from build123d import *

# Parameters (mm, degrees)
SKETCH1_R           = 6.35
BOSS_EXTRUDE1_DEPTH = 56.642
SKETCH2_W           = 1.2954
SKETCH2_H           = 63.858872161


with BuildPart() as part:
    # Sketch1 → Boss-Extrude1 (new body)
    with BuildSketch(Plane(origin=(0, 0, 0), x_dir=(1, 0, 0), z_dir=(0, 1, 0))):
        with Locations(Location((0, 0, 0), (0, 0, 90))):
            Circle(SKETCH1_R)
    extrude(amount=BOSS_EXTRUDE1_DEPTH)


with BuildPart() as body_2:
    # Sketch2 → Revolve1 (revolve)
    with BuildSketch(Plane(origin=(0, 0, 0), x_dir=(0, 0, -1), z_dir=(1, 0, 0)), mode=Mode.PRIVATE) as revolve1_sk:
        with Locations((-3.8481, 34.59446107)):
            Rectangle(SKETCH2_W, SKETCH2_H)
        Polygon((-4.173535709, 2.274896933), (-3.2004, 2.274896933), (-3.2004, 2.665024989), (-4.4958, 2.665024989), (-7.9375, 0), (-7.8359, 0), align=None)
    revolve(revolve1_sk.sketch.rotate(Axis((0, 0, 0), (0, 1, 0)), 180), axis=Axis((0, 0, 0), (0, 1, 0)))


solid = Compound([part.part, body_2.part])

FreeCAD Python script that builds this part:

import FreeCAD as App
import Part
import Sketcher
from FreeCAD import Vector
Q = App.Units.Quantity


def add_polygon(sketch, points):
    """Adds a closed chain of lines whose ends are joined by coincident constraints."""
    first, n = sketch.GeometryCount, len(points)
    for a, b in zip(points, points[1:] + points[:1]):
        sketch.addGeometry(Part.LineSegment(App.Vector(*a, 0), App.Vector(*b, 0)), False)
    for i in range(n):
        sketch.addConstraint(Sketcher.Constraint("Coincident", first + i, 2, first + (i + 1) % n, 1))

doc = App.newDocument("Part")
params = doc.addObject("Spreadsheet::Sheet", "Params")
for row, (alias, value) in enumerate([
    ("sketch1_diameter", "0.5 in"),
    ("pad1_length", "2.23 in"),
    ("sketch2_height", "0.004 in"),
    ("sketch2_height2", "0.051 in"),
    ("revolution_angle", "360 deg"),
], start=1):
    params.set(f"A{row}", alias)
    params.set(f"B{row}", "=" + value)
    params.setAlias(f"B{row}", alias)

body = doc.addObject("PartDesign::Body", "Body")

sketch1 = body.newObject("Sketcher::SketchObject", "Sketch")
sketch1.AttachmentSupport = (doc.getObject("XZ_Plane"), [""])
sketch1.MapMode = "FlatFace"
sketch1.addGeometry(Part.Circle(Vector(0, 0, 0), Vector(0, 0, 1), 6.35), False)
sketch1.addConstraint(Sketcher.Constraint("Coincident", 0, 3, -1, 1))
sketch1.addConstraint(Sketcher.Constraint("Diameter", 0, Q("0.5 in")))
sketch1.setExpression("Constraints[1]", "Params.sketch1_diameter")
pad1 = body.newObject("PartDesign::Pad", "Pad")
pad1.Profile = sketch1
pad1.setExpression("Length", "Params.pad1_length")
pad1.Reversed = True
body2 = doc.addObject("PartDesign::Body", "Body001")

sketch2 = body2.newObject("Sketcher::SketchObject", "Sketch001")
sketch2.AttachmentSupport = (doc.getObject("YZ_Plane001"), [""])
sketch2.MapMode = "FlatFace"
add_polygon(sketch2, [(66.523897, 4.4958), (2.665025, 4.4958), (0, 7.9375), (0, 7.8359), (2.274897, 4.173536), (2.274897, 3.2004), (66.523897, 3.2004)])
sketch2.addConstraint(Sketcher.Constraint("Horizontal", 0))
sketch2.addConstraint(Sketcher.Constraint("Vertical", 2))
sketch2.addConstraint(Sketcher.Constraint("Vertical", 4))
sketch2.addConstraint(Sketcher.Constraint("Horizontal", 5))
sketch2.addConstraint(Sketcher.Constraint("Vertical", 6))
sketch2.addConstraint(Sketcher.Constraint("PointOnObject", 1, 2, -2))
sketch2.addConstraint(Sketcher.Constraint("DistanceY", 2, 2, 2, 1, Q("0.004 in")))
sketch2.addConstraint(Sketcher.Constraint("DistanceY", 6, 1, 6, 2, Q("0.051 in")))
sketch2.addConstraint(Sketcher.Constraint("DistanceY", -1, 1, 0, 2, Q("0.177 in")))
sketch2.addConstraint(Sketcher.Constraint("DistanceY", -1, 1, 1, 2, Q("0.3125 in")))
sketch2.addConstraint(Sketcher.Constraint("DistanceX", 5, 1, 5, 2, 64.249))
sketch2.addConstraint(Sketcher.Constraint("Distance", 1, 4.352891))
sketch2.addConstraint(Sketcher.Constraint("Distance", 3, 4.311388))
sketch2.addConstraint(Sketcher.Constraint("DistanceX", 0, 2, 0, 1, 63.858872))
sketch2.setExpression("Constraints[13]", "Params.sketch2_height")
sketch2.setExpression("Constraints[14]", "Params.sketch2_height2")
revolution = body2.newObject("PartDesign::Revolution", "Revolution")
revolution.Profile = sketch2
revolution.ReferenceAxis = (sketch2, ["H_Axis"])
revolution.setExpression("Angle", "Params.revolution_angle")

doc.recompute()
